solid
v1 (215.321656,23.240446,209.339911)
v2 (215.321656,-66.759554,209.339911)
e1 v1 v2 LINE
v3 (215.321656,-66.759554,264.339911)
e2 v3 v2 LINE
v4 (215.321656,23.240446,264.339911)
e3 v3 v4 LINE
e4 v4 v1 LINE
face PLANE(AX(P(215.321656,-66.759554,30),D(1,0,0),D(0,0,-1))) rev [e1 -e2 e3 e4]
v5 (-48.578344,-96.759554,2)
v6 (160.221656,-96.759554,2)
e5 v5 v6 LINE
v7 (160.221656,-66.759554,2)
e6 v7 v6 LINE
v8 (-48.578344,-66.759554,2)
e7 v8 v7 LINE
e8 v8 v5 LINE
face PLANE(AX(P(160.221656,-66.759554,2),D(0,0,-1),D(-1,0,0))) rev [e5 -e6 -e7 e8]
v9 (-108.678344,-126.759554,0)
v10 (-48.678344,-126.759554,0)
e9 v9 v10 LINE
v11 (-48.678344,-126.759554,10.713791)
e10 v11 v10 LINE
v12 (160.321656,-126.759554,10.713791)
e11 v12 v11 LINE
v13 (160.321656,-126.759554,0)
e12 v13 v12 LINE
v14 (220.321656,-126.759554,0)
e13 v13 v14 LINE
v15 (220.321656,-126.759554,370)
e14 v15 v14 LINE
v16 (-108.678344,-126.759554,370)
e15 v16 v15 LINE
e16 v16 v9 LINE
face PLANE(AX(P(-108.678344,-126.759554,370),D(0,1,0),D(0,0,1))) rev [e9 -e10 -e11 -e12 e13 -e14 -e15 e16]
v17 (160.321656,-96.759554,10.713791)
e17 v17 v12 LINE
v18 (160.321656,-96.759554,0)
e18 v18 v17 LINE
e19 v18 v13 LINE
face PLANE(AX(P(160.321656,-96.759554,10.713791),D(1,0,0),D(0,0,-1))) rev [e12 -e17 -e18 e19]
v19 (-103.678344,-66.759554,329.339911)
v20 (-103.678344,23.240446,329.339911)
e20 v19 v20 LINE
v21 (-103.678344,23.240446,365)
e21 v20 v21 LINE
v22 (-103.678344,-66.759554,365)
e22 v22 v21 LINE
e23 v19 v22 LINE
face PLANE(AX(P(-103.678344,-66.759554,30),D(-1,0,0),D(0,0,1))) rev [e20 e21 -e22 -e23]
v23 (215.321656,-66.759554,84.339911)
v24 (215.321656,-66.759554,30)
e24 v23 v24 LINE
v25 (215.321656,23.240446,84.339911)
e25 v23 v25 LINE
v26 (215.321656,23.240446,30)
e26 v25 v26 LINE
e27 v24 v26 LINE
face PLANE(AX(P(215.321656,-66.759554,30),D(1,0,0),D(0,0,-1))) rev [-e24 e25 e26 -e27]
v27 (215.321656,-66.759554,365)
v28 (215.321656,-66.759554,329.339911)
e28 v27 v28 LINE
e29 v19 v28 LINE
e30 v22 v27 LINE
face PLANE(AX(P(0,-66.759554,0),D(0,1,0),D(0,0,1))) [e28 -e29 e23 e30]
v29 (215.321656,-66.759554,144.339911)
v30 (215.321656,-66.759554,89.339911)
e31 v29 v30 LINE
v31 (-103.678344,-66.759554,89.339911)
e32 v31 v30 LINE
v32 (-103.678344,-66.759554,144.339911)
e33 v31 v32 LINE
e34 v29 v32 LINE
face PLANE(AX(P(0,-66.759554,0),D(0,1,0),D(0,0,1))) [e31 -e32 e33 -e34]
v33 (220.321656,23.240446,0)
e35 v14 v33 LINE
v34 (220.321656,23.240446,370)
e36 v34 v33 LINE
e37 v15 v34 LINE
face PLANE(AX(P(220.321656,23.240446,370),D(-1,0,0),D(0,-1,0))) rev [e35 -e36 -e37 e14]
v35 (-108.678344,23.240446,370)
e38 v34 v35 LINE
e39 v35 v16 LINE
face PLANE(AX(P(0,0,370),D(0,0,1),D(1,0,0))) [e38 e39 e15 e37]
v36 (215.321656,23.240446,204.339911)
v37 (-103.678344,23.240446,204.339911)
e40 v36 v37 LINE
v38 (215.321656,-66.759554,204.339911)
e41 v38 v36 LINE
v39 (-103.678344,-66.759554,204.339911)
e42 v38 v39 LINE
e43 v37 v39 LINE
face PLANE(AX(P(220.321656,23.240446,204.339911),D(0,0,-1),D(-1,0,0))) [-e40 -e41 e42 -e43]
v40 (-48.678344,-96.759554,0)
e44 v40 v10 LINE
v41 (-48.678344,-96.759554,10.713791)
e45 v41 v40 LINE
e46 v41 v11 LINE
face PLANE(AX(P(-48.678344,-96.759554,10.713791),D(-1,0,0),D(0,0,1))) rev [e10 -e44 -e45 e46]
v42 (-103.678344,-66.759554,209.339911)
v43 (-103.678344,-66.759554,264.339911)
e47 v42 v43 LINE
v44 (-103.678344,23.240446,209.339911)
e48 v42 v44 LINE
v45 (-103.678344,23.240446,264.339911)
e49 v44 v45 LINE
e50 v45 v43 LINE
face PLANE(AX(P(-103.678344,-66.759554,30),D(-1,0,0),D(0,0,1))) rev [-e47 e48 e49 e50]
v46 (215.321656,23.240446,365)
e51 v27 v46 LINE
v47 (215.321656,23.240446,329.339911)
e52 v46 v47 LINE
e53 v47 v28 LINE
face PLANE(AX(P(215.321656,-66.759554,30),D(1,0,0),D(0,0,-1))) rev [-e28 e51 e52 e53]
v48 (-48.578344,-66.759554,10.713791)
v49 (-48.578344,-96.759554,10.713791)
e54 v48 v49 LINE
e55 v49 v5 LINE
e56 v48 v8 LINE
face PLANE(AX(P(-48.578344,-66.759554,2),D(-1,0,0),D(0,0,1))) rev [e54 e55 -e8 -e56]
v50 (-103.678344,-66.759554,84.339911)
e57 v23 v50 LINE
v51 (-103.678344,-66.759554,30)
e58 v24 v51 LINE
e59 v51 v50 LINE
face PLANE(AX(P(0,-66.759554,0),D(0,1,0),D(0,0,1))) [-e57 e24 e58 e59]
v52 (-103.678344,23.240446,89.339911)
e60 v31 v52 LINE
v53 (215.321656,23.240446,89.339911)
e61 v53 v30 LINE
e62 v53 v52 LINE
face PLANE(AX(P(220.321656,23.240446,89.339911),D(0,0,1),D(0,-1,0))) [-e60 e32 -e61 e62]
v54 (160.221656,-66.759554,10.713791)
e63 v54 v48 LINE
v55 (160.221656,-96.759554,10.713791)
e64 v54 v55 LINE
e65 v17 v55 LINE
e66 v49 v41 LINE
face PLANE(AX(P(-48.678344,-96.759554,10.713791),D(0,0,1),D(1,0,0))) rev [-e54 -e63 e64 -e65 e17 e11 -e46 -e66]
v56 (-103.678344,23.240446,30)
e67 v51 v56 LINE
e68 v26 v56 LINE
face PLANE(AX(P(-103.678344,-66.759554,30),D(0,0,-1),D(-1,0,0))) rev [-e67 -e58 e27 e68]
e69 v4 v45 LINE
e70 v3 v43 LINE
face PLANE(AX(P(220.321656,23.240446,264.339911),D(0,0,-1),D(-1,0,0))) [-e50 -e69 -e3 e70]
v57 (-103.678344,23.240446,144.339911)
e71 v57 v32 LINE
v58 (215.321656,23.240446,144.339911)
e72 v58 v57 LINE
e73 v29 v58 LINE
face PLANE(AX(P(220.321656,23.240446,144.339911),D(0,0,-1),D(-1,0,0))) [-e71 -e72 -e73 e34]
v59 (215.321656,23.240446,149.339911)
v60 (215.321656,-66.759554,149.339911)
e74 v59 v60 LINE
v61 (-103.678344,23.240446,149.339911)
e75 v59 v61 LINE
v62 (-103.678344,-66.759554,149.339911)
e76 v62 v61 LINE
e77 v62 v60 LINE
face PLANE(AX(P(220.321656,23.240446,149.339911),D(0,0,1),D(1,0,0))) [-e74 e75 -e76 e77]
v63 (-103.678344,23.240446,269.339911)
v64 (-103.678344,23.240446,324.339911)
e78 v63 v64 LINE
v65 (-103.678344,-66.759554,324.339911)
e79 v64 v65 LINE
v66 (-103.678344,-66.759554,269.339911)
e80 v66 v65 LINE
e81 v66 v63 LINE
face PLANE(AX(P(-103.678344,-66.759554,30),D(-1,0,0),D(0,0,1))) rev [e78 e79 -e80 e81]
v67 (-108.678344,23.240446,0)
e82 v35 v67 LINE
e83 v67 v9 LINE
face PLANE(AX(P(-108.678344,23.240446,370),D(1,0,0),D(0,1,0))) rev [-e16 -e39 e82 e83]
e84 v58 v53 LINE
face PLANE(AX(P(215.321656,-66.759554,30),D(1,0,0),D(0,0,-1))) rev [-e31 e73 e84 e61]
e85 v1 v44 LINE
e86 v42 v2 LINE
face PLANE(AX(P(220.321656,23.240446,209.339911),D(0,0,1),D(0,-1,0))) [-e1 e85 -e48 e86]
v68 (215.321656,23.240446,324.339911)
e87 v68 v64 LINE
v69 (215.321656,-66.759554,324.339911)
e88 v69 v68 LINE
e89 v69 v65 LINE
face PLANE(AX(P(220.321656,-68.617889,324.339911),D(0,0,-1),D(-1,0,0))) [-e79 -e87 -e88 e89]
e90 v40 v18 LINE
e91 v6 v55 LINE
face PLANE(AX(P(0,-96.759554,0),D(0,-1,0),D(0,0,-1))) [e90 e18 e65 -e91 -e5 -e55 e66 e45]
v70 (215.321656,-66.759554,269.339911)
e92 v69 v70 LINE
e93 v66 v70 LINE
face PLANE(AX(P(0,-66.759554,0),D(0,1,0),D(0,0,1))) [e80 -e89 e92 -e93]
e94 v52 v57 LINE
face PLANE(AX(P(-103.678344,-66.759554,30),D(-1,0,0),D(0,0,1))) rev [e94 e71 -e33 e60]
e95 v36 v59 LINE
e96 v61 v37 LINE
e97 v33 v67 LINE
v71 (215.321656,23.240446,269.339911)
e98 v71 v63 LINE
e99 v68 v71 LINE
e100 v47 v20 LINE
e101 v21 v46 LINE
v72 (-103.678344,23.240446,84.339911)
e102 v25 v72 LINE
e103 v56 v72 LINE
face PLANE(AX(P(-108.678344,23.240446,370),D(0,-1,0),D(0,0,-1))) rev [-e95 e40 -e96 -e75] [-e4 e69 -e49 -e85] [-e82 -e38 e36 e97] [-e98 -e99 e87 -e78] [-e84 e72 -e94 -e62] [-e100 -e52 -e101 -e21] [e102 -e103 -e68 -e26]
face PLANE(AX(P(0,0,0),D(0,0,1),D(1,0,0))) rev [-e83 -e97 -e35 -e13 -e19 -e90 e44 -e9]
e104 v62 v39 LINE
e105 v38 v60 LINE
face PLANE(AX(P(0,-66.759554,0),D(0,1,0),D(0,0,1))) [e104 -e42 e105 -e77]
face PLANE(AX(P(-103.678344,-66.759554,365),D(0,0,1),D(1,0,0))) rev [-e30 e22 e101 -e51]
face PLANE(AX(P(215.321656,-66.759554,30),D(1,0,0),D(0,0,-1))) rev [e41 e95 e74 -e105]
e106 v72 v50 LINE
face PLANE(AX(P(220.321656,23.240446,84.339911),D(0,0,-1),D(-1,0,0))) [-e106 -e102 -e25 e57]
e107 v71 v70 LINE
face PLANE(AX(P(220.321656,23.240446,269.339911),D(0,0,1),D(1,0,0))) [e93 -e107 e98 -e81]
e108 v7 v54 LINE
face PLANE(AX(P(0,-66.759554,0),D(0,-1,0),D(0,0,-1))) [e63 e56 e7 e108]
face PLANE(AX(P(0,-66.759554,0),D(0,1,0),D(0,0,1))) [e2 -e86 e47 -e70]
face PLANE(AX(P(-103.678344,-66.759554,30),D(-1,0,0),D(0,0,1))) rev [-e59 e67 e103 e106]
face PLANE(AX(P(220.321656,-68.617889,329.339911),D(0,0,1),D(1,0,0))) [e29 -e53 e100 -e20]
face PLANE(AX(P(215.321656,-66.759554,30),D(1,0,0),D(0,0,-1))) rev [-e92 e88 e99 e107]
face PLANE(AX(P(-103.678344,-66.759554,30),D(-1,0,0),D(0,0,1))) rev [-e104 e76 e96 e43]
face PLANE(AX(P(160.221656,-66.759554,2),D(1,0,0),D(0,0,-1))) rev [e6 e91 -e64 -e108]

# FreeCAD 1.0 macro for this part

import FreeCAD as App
import Part
import Sketcher

V = App.Vector

doc = App.newDocument("Part")
body = doc.addObject("PartDesign::Body", "Body")

sketch1 = doc.addObject("Sketcher::SketchObject", "Sketch")
body.addObject(sketch1)
sketch1.AttachmentSupport = (doc.XY_Plane, [""])
sketch1.MapMode = "FlatFace"
sketch1.addGeometry([
    Part.LineSegment(V(-109, 23, 0), V(-109, -127, 0)),
    Part.LineSegment(V(-109, -127, 0), V(220, -127, 0)),
    Part.LineSegment(V(220, -127, 0), V(220, 23, 0)),
    Part.LineSegment(V(220, 23, 0), V(-109, 23, 0)),
], False)
sketch1.addConstraint([
    Sketcher.Constraint("Coincident", 0, 2, 1, 1),
    Sketcher.Constraint("Coincident", 1, 2, 2, 1),
    Sketcher.Constraint("Coincident", 2, 2, 3, 1),
    Sketcher.Constraint("Coincident", 3, 2, 0, 1),
    Sketcher.Constraint("Vertical", 0),
    Sketcher.Constraint("Horizontal", 1),
    Sketcher.Constraint("Vertical", 2),
    Sketcher.Constraint("Horizontal", 3),
    Sketcher.Constraint("DistanceX", 1, 1, 1, 2, 329.0),
    Sketcher.Constraint("DistanceY", 0, 2, 0, 1, 150.0),
    Sketcher.Constraint("DistanceX", 0, 2, -1, 1, 108.678344),
    Sketcher.Constraint("DistanceY", 0, 2, -1, 1, 126.759554),
])
pad1 = doc.addObject("PartDesign::Pad", "Pad")
body.addObject(pad1)
pad1.Profile = sketch1
pad1.Length = 370

sketch2 = doc.addObject("Sketcher::SketchObject", "Sketch001")
body.addObject(sketch2)
sketch2.AttachmentSupport = (doc.XZ_Plane, [""])
sketch2.MapMode = "FlatFace"
sketch2.AttachmentOffset = App.Placement(V(0, 0, -23.240446), App.Rotation())
sketch2.addGeometry([
    Part.LineSegment(V(-104, 30, 0), V(-104, 365, 0)),
    Part.LineSegment(V(-104, 365, 0), V(215, 365, 0)),
    Part.LineSegment(V(215, 365, 0), V(215, 30, 0)),
    Part.LineSegment(V(215, 30, 0), V(-104, 30, 0)),
], False)
sketch2.addConstraint([
    Sketcher.Constraint("Coincident", 0, 2, 1, 1),
    Sketcher.Constraint("Coincident", 1, 2, 2, 1),
    Sketcher.Constraint("Coincident", 2, 2, 3, 1),
    Sketcher.Constraint("Coincident", 3, 2, 0, 1),
    Sketcher.Constraint("Vertical", 0),
    Sketcher.Constraint("Horizontal", 1),
    Sketcher.Constraint("Vertical", 2),
    Sketcher.Constraint("Horizontal", 3),
    Sketcher.Constraint("DistanceX", 1, 1, 1, 2, 319.0),
    Sketcher.Constraint("DistanceY", 0, 1, 0, 2, 335.0),
    Sketcher.Constraint("DistanceY", -1, 1, 0, 2, 365.0),
    Sketcher.Constraint("DistanceX", 0, 2, -1, 1, 103.678344),
])
pocket1 = doc.addObject("PartDesign::Pocket", "Pocket")
body.addObject(pocket1)
pocket1.Profile = sketch2
pocket1.Length = 90
pocket1.Reversed = True

sketch3 = doc.addObject("Sketcher::SketchObject", "Sketch002")
body.addObject(sketch3)
sketch3.AttachmentSupport = (doc.XZ_Plane, [""])
sketch3.MapMode = "FlatFace"
sketch3.AttachmentOffset = App.Placement(V(0, 0, 126.759554), App.Rotation())
sketch3.addGeometry([
    Part.LineSegment(V(160, 0, 0), V(160, 11, 0)),
    Part.LineSegment(V(160, 11, 0), V(-49, 11, 0)),
    Part.LineSegment(V(-49, 11, 0), V(-49, 0, 0)),
    Part.LineSegment(V(-49, 0, 0), V(160, 0, 0)),
], False)
sketch3.addConstraint([
    Sketcher.Constraint("Coincident", 0, 2, 1, 1),
    Sketcher.Constraint("Coincident", 1, 2, 2, 1),
    Sketcher.Constraint("Coincident", 2, 2, 3, 1),
    Sketcher.Constraint("Coincident", 3, 2, 0, 1),
    Sketcher.Constraint("Vertical", 0),
    Sketcher.Constraint("Horizontal", 1),
    Sketcher.Constraint("Vertical", 2),
    Sketcher.Constraint("Horizontal", 3),
    Sketcher.Constraint("PointOnObject", 2, 2, -1),
    Sketcher.Constraint("DistanceX", 1, 2, 1, 1, 209.0),
    Sketcher.Constraint("DistanceY", 0, 1, 0, 2, 10.713791),
    Sketcher.Constraint("DistanceX", -1, 1, 0, 2, 160.321656),
])
pocket2 = doc.addObject("PartDesign::Pocket", "Pocket001")
body.addObject(pocket2)
pocket2.Profile = sketch3
pocket2.Length = 30

sketch4 = doc.addObject("Sketcher::SketchObject", "Sketch003")
body.addObject(sketch4)
sketch4.AttachmentSupport = (doc.XZ_Plane, [""])
sketch4.MapMode = "FlatFace"
sketch4.AttachmentOffset = App.Placement(V(0, 0, 96.759554), App.Rotation())
sketch4.addGeometry([
    Part.LineSegment(V(160, 2, 0), V(160, 11, 0)),
    Part.LineSegment(V(160, 11, 0), V(-49, 11, 0)),
    Part.LineSegment(V(-49, 11, 0), V(-49, 2, 0)),
    Part.LineSegment(V(-49, 2, 0), V(160, 2, 0)),
], False)
sketch4.addConstraint([
    Sketcher.Constraint("Coincident", 0, 2, 1, 1),
    Sketcher.Constraint("Coincident", 1, 2, 2, 1),
    Sketcher.Constraint("Coincident", 2, 2, 3, 1),
    Sketcher.Constraint("Coincident", 3, 2, 0, 1),
    Sketcher.Constraint("Vertical", 0),
    Sketcher.Constraint("Horizontal", 1),
    Sketcher.Constraint("Vertical", 2),
    Sketcher.Constraint("Horizontal", 3),
    Sketcher.Constraint("DistanceX", 1, 2, 1, 1, 208.8),
    Sketcher.Constraint("DistanceY", -1, 1, 2, 2, 2.0),
    Sketcher.Constraint("DistanceY", 0, 1, 0, 2, 8.713791),
    Sketcher.Constraint("DistanceX", -1, 1, 0, 2, 160.221656),
])
pocket3 = doc.addObject("PartDesign::Pocket", "Pocket002")
body.addObject(pocket3)
pocket3.Profile = sketch4
pocket3.Length = 30

sketch5 = doc.addObject("Sketcher::SketchObject", "Sketch004")
body.addObject(sketch5)
sketch5.AttachmentSupport = (doc.XZ_Plane, [""])
sketch5.MapMode = "FlatFace"
sketch5.AttachmentOffset = App.Placement(V(0, 0, 66.759554), App.Rotation())
sketch5.addGeometry([
    Part.LineSegment(V(41, 5, 0), V(41, 17, 0)),
    Part.LineSegment(V(41, 17, 0), V(-49, 17, 0)),
    Part.LineSegment(V(-49, 17, 0), V(-49, 5, 0)),
    Part.LineSegment(V(-49, 5, 0), V(41, 5, 0)),
], False)
sketch5.addConstraint([
    Sketcher.Constraint("Coincident", 0, 2, 1, 1),
    Sketcher.Constraint("Coincident", 1, 2, 2, 1),
    Sketcher.Constraint("Coincident", 2, 2, 3, 1),
    Sketcher.Constraint("Coincident", 3, 2, 0, 1),
    Sketcher.Constraint("Vertical", 0),
    Sketcher.Constraint("Horizontal", 1),
    Sketcher.Constraint("Vertical", 2),
    Sketcher.Constraint("Horizontal", 3),
    Sketcher.Constraint("DistanceX", 1, 2, 1, 1, 90.150576),
    Sketcher.Constraint("DistanceY", 0, 1, 0, 2, 11.402148),
    Sketcher.Constraint("DistanceX", -1, 1, 0, 2, 41.472232),
    Sketcher.Constraint("DistanceY", -1, 1, 0, 2, 16.759044),
])
pad2 = doc.addObject("PartDesign::Pad", "Pad001")
body.addObject(pad2)
pad2.Profile = sketch5
pad2.Length = 30
pad2.Reversed = True

sketch6 = doc.addObject("Sketcher::SketchObject", "Sketch005")
body.addObject(sketch6)
sketch6.AttachmentSupport = (doc.YZ_Plane, [""])
sketch6.MapMode = "FlatFace"
sketch6.AttachmentOffset = App.Placement(V(0, 0, -108.678344), App.Rotation())
sketch6.addGeometry([
    Part.LineSegment(V(23, 84, 0), V(-67, 84, 0)),
    Part.LineSegment(V(-67, 84, 0), V(-67, 89, 0)),
    Part.LineSegment(V(-67, 89, 0), V(23, 89, 0)),
    Part.LineSegment(V(23, 89, 0), V(23, 84, 0)),
], False)
sketch6.addConstraint([
    Sketcher.Constraint("Coincident", 0, 2, 1, 1),
    Sketcher.Constraint("Coincident", 1, 2, 2, 1),
    Sketcher.Constraint("Coincident", 2, 2, 3, 1),
    Sketcher.Constraint("Coincident", 3, 2, 0, 1),
    Sketcher.Constraint("Horizontal", 0),
    Sketcher.Constraint("Vertical", 1),
    Sketcher.Constraint("Horizontal", 2),
    Sketcher.Constraint("Vertical", 3),
    Sketcher.Constraint("DistanceX", 0, 2, 0, 1, 90.0),
    Sketcher.Constraint("DistanceY", 1, 1, 1, 2, 5.0),
    Sketcher.Constraint("DistanceY", -1, 1, 0, 2, 84.339911),
    Sketcher.Constraint("DistanceX", 0, 2, -1, 1, 66.759554),
])
pad3 = doc.addObject("PartDesign::Pad", "Pad002")
body.addObject(pad3)
pad3.Profile = sketch6
pad3.Length = 329

sketch7 = doc.addObject("Sketcher::SketchObject", "Sketch006")
body.addObject(sketch7)
sketch7.AttachmentSupport = (doc.YZ_Plane, [""])
sketch7.MapMode = "FlatFace"
sketch7.AttachmentOffset = App.Placement(V(0, 0, -108.678344), App.Rotation())
sketch7.addGeometry([
    Part.LineSegment(V(23, 144, 0), V(-69, 144, 0)),
    Part.LineSegment(V(-69, 144, 0), V(-69, 149, 0)),
    Part.LineSegment(V(-69, 149, 0), V(23, 149, 0)),
    Part.LineSegment(V(23, 149, 0), V(23, 144, 0)),
], False)
sketch7.addConstraint([
    Sketcher.Constraint("Coincident", 0, 2, 1, 1),
    Sketcher.Constraint("Coincident", 1, 2, 2, 1),
    Sketcher.Constraint("Coincident", 2, 2, 3, 1),
    Sketcher.Constraint("Coincident", 3, 2, 0, 1),
    Sketcher.Constraint("Horizontal", 0),
    Sketcher.Constraint("Vertical", 1),
    Sketcher.Constraint("Horizontal", 2),
    Sketcher.Constraint("Vertical", 3),
    Sketcher.Constraint("DistanceY", 1, 1, 1, 2, 5.0),
    Sketcher.Constraint("DistanceX", 0, 2, 0, 1, 92.498012),
    Sketcher.Constraint("DistanceY", -1, 1, 0, 2, 144.339911),
    Sketcher.Constraint("DistanceX", 0, 2, -1, 1, 69.257566),
])
pad4 = doc.addObject("PartDesign::Pad", "Pad003")
body.addObject(pad4)
pad4.Profile = sketch7
pad4.Length = 329

sketch8 = doc.addObject("Sketcher::SketchObject", "Sketch007")
body.addObject(sketch8)
sketch8.AttachmentSupport = (doc.YZ_Plane, [""])
sketch8.MapMode = "FlatFace"
sketch8.AttachmentOffset = App.Placement(V(0, 0, -108.678344), App.Rotation())
sketch8.addGeometry([
    Part.LineSegment(V(23, 204, 0), V(-67, 204, 0)),
    Part.LineSegment(V(-67, 204, 0), V(-67, 209, 0)),
    Part.LineSegment(V(-67, 209, 0), V(23, 209, 0)),
    Part.LineSegment(V(23, 209, 0), V(23, 204, 0)),
], False)
sketch8.addConstraint([
    Sketcher.Constraint("Coincident", 0, 2, 1, 1),
    Sketcher.Constraint("Coincident", 1, 2, 2, 1),
    Sketcher.Constraint("Coincident", 2, 2, 3, 1),
    Sketcher.Constraint("Coincident", 3, 2, 0, 1),
    Sketcher.Constraint("Horizontal", 0),
    Sketcher.Constraint("Vertical", 1),
    Sketcher.Constraint("Horizontal", 2),
    Sketcher.Constraint("Vertical", 3),
    Sketcher.Constraint("DistanceX", 0, 2, 0, 1, 90.0),
    Sketcher.Constraint("DistanceY", 1, 1, 1, 2, 5.0),
    Sketcher.Constraint("DistanceY", -1, 1, 0, 2, 204.339911),
    Sketcher.Constraint("DistanceX", 0, 2, -1, 1, 66.759554),
])
pad5 = doc.addObject("PartDesign::Pad", "Pad004")
body.addObject(pad5)
pad5.Profile = sketch8
pad5.Length = 329

sketch9 = doc.addObject("Sketcher::SketchObject", "Sketch008")
body.addObject(sketch9)
sketch9.AttachmentSupport = (doc.YZ_Plane, [""])
sketch9.MapMode = "FlatFace"
sketch9.AttachmentOffset = App.Placement(V(0, 0, -108.678344), App.Rotation())
sketch9.addGeometry([
    Part.LineSegment(V(23, 264, 0), V(-67, 264, 0)),
    Part.LineSegment(V(-67, 264, 0), V(-67, 269, 0)),
    Part.LineSegment(V(-67, 269, 0), V(23, 269, 0)),
    Part.LineSegment(V(23, 269, 0), V(23, 264, 0)),
], False)
sketch9.addConstraint([
    Sketcher.Constraint("Coincident", 0, 2, 1, 1),
    Sketcher.Constraint("Coincident", 1, 2, 2, 1),
    Sketcher.Constraint("Coincident", 2, 2, 3, 1),
    Sketcher.Constraint("Coincident", 3, 2, 0, 1),
    Sketcher.Constraint("Horizontal", 0),
    Sketcher.Constraint("Vertical", 1),
    Sketcher.Constraint("Horizontal", 2),
    Sketcher.Constraint("Vertical", 3),
    Sketcher.Constraint("DistanceX", 0, 2, 0, 1, 90.0),
    Sketcher.Constraint("DistanceY", 1, 1, 1, 2, 5.0),
    Sketcher.Constraint("DistanceY", -1, 1, 0, 2, 264.339911),
    Sketcher.Constraint("DistanceX", 0, 2, -1, 1, 66.759554),
])
pad6 = doc.addObject("PartDesign::Pad", "Pad005")
body.addObject(pad6)
pad6.Profile = sketch9
pad6.Length = 329

sketch10 = doc.addObject("Sketcher::SketchObject", "Sketch009")
body.addObject(sketch10)
sketch10.AttachmentSupport = (doc.YZ_Plane, [""])
sketch10.MapMode = "FlatFace"
sketch10.AttachmentOffset = App.Placement(V(0, 0, -108.678344), App.Rotation())
sketch10.addGeometry([
    Part.LineSegment(V(23, 324, 0), V(-69, 324, 0)),
    Part.LineSegment(V(-69, 324, 0), V(-69, 329, 0)),
    Part.LineSegment(V(-69, 329, 0), V(23, 329, 0)),
    Part.LineSegment(V(23, 329, 0), V(23, 324, 0)),
], False)
sketch10.addConstraint([
    Sketcher.Constraint("Coincident", 0, 2, 1, 1),
    Sketcher.Constraint("Coincident", 1, 2, 2, 1),
    Sketcher.Constraint("Coincident", 2, 2, 3, 1),
    Sketcher.Constraint("Coincident", 3, 2, 0, 1),
    Sketcher.Constraint("Horizontal", 0),
    Sketcher.Constraint("Vertical", 1),
    Sketcher.Constraint("Horizontal", 2),
    Sketcher.Constraint("Vertical", 3),
    Sketcher.Constraint("DistanceY", 1, 1, 1, 2, 5.0),
    Sketcher.Constraint("DistanceX", 0, 2, 0, 1, 91.858335),
    Sketcher.Constraint("DistanceX", 0, 2, -1, 1, 68.617889),
    Sketcher.Constraint("DistanceY", -1, 1, 0, 2, 324.339911),
])
pad7 = doc.addObject("PartDesign::Pad", "Pad006")
body.addObject(pad7)
pad7.Profile = sketch10
pad7.Length = 329

doc.recompute()
